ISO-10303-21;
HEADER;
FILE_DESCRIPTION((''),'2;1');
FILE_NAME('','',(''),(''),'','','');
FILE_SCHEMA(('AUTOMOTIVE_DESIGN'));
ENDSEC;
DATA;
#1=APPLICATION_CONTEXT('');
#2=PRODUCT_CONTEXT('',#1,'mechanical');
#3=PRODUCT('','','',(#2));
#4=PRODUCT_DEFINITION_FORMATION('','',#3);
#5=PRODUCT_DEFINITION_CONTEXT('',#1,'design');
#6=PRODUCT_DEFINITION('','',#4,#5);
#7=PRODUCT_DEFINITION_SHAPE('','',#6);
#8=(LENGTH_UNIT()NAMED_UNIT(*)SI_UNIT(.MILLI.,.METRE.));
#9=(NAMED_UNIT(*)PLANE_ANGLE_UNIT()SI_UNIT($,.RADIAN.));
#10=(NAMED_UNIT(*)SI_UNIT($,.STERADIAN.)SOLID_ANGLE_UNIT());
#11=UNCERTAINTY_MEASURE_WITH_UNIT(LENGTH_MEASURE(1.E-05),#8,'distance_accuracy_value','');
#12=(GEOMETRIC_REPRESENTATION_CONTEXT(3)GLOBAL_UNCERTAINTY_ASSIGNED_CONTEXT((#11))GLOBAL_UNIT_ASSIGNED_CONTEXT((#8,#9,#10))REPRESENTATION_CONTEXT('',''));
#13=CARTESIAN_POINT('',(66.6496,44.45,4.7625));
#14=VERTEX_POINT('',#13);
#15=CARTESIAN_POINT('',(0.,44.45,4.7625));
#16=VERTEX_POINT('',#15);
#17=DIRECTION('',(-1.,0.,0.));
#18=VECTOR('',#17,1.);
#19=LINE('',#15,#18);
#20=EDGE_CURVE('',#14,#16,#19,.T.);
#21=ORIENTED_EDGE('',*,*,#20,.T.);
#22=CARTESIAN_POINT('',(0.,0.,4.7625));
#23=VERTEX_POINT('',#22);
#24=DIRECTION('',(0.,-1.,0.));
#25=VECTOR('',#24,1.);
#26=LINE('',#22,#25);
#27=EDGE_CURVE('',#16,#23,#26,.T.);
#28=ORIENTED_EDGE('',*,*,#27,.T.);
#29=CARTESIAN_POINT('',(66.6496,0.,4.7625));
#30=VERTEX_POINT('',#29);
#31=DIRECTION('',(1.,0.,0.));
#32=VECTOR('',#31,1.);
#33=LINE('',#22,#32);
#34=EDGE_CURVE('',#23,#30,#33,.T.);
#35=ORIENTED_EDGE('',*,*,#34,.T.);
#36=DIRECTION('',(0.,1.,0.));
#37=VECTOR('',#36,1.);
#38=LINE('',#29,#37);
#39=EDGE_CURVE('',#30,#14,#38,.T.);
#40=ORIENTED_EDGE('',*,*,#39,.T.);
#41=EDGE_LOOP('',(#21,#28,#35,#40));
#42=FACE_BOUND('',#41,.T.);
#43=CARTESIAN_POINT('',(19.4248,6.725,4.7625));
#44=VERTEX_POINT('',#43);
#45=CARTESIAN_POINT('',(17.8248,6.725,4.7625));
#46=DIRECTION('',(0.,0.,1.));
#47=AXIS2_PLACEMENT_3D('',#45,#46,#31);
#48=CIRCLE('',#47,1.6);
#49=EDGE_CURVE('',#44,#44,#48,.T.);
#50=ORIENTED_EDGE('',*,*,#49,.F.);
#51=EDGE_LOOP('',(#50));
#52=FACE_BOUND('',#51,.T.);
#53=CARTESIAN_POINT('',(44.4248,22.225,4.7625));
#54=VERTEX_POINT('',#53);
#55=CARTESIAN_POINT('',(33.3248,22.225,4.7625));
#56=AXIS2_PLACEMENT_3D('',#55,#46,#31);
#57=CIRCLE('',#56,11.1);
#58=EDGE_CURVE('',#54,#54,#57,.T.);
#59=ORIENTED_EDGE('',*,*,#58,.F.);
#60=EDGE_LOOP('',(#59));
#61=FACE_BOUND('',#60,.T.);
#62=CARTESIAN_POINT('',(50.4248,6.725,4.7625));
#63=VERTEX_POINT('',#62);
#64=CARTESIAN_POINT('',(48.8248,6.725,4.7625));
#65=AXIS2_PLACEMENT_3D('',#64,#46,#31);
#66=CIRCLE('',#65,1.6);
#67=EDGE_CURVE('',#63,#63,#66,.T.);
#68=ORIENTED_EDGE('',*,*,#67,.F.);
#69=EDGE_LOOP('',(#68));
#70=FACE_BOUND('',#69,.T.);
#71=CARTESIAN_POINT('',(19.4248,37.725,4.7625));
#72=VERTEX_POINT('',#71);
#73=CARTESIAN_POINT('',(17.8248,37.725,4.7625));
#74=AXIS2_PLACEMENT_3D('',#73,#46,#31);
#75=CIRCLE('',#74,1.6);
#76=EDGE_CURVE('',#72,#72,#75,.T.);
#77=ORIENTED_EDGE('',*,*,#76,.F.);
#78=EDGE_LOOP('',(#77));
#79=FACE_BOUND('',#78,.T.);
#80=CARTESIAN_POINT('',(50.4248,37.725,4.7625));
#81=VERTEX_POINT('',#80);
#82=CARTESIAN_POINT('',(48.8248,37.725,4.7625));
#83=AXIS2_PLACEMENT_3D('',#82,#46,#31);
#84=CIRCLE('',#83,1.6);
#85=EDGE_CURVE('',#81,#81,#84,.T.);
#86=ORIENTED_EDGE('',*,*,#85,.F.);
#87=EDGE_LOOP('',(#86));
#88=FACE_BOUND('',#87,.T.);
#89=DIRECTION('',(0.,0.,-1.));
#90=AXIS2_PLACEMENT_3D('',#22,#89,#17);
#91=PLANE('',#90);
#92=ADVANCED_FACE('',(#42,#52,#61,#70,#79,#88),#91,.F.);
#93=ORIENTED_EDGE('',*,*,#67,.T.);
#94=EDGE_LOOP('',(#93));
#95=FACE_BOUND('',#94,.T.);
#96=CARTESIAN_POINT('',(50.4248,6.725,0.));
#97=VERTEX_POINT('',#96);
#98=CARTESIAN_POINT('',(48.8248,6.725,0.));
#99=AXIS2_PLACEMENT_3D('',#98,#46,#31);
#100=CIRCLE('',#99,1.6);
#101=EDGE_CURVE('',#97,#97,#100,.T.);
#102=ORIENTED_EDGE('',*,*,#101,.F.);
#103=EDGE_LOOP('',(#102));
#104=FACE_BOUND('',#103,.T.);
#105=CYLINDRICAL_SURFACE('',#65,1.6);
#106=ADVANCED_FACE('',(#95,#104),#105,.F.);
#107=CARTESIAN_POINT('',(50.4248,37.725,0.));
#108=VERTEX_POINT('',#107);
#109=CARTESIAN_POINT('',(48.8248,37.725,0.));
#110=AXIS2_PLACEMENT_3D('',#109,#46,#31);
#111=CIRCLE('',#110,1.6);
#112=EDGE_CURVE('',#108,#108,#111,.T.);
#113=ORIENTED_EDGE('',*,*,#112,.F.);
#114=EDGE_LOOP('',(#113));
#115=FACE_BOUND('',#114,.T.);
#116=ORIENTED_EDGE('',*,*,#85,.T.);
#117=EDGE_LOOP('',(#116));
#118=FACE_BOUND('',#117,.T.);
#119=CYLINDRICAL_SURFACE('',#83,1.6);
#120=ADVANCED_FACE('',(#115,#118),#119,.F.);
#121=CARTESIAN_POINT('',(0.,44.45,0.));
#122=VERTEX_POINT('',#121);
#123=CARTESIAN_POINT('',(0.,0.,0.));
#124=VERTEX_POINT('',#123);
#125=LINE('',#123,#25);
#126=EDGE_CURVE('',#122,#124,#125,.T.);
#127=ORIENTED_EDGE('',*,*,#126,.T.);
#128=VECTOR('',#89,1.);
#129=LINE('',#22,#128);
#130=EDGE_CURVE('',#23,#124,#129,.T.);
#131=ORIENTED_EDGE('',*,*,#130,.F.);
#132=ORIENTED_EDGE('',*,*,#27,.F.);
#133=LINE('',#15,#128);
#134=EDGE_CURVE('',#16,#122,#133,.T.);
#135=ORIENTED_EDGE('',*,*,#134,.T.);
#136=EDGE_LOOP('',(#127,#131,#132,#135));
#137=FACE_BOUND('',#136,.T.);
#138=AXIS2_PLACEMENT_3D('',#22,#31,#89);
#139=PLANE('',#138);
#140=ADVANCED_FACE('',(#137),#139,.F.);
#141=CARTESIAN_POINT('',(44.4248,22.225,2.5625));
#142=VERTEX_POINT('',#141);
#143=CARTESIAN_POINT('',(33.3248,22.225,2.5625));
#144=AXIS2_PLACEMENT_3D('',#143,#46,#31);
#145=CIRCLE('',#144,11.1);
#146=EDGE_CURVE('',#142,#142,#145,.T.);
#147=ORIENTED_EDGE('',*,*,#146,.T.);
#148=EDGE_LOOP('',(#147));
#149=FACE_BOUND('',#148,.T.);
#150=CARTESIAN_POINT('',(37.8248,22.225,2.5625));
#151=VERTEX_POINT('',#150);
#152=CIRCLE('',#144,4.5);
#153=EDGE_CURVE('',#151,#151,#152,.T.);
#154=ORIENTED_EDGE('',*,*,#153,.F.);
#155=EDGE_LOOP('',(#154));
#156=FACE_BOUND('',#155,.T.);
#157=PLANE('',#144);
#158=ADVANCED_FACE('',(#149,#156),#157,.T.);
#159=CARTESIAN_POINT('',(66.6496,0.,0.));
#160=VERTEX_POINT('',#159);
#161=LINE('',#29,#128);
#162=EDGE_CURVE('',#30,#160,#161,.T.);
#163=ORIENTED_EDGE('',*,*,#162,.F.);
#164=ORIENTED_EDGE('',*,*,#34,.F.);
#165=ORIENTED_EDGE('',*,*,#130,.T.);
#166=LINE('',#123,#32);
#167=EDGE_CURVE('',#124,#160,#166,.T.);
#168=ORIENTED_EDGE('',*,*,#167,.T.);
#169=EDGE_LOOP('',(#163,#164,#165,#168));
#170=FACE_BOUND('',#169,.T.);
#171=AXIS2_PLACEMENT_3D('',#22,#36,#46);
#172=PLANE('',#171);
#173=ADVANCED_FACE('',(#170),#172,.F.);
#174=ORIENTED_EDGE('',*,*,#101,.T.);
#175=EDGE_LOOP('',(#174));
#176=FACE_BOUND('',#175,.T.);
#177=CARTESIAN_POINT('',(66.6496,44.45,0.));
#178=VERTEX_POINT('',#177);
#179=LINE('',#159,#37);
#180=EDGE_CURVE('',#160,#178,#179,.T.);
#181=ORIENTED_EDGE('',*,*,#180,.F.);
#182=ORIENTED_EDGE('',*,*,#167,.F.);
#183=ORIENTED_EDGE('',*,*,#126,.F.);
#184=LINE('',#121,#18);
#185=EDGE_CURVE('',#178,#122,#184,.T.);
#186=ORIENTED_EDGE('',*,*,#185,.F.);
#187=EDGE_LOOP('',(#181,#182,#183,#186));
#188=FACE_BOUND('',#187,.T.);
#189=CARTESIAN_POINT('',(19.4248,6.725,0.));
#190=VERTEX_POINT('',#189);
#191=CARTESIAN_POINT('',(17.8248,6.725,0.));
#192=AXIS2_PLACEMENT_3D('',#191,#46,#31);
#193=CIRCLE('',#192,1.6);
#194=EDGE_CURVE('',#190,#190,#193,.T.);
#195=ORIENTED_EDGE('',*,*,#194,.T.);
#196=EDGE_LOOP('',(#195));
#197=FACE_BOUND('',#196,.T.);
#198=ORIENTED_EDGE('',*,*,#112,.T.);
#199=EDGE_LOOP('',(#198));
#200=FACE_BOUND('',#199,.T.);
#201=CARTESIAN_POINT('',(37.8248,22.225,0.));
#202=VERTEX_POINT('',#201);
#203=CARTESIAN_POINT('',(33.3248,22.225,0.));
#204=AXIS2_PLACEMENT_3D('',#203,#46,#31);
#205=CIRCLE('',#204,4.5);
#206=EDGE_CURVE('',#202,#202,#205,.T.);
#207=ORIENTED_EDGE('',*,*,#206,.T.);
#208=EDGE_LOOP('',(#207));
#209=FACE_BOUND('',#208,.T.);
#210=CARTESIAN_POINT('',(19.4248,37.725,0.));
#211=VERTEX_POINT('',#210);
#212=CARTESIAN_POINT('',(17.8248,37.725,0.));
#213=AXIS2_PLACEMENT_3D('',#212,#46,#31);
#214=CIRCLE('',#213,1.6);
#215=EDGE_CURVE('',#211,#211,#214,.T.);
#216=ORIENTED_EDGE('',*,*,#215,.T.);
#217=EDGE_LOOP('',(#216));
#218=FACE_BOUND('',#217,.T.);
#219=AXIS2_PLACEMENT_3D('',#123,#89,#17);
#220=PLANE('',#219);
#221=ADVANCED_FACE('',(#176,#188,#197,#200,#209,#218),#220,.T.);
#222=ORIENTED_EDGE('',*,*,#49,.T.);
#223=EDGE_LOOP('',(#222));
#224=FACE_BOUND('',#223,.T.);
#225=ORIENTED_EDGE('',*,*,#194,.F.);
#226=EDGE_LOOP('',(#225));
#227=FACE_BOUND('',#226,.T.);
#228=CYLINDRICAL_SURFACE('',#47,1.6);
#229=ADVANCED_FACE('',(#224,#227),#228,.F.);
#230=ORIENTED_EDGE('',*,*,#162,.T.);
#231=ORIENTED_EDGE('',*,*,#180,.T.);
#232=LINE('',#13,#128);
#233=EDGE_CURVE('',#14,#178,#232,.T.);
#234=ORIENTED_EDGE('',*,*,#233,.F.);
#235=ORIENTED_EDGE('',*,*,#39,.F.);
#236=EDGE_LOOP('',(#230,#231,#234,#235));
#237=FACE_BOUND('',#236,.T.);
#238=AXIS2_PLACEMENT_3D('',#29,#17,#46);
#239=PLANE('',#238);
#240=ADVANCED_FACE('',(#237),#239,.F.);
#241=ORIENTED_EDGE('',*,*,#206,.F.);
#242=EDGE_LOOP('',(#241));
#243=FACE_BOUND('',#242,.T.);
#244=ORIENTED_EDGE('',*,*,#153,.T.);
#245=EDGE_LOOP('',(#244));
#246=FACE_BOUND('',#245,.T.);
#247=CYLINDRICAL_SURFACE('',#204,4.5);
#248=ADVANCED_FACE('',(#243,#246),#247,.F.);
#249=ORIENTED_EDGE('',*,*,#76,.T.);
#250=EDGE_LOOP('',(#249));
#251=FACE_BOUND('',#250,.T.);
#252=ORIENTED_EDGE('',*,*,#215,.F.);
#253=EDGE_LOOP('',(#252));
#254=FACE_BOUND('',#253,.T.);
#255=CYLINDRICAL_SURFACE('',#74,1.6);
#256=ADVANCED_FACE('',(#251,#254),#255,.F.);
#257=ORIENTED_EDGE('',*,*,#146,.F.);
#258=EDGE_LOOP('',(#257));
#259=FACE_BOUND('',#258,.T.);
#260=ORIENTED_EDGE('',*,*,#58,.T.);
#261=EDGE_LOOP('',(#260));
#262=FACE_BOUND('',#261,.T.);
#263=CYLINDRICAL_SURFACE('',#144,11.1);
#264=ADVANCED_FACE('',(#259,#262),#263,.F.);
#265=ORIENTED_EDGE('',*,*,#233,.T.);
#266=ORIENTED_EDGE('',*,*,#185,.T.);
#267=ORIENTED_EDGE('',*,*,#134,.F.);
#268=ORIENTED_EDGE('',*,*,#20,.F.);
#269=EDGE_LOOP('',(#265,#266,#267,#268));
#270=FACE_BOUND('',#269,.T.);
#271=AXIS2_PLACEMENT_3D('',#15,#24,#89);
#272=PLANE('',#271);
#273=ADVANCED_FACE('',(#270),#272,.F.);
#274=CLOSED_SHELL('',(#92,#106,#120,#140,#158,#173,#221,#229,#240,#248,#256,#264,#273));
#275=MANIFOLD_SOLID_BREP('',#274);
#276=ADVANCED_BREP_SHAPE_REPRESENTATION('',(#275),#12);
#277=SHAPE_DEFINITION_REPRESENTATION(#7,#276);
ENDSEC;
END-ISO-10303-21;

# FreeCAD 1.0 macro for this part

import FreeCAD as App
import Part
import Sketcher

V = App.Vector

doc = App.newDocument("Part")
params = doc.addObject("Spreadsheet::Sheet", "Params")
for row, (alias, value) in enumerate([
    ("sketch1_height", "44.45 mm"),
    ("pad1_length", "4.7625 mm"),
    ("sketch2_diameter", "3.2 mm"),
    ("hole_diameter", "3.2 mm"),
    ("sketch3_diameter", "22.2 mm"),
    ("pocket1_length", "2.2 mm"),
    ("sketch4_diameter", "9 mm"),
], start=1):
    params.set(f"A{row}", alias)
    params.set(f"B{row}", "=" + value)
    params.setAlias(f"B{row}", alias)

body = doc.addObject("PartDesign::Body", "Body")

# Sketch on XY plane
sketch1 = doc.addObject("Sketcher::SketchObject", "Sketch")
body.addObject(sketch1)
sketch1.AttachmentSupport = (doc.XY_Plane, [""])
sketch1.MapMode = "FlatFace"
sketch1.addGeometry(Part.LineSegment(V(0, 44.45, 0), V(0, 0, 0)), False)
sketch1.addGeometry(Part.LineSegment(V(0, 0, 0), V(66.6496, 0, 0)), False)
sketch1.addGeometry(Part.LineSegment(V(66.6496, 0, 0), V(66.6496, 44.45, 0)), False)
sketch1.addGeometry(Part.LineSegment(V(66.6496, 44.45, 0), V(0, 44.45, 0)), False)
sketch1.addConstraint(Sketcher.Constraint("Coincident", 0, 2, 1, 1))
sketch1.addConstraint(Sketcher.Constraint("Coincident", 1, 2, 2, 1))
sketch1.addConstraint(Sketcher.Constraint("Coincident", 2, 2, 3, 1))
sketch1.addConstraint(Sketcher.Constraint("Coincident", 3, 2, 0, 1))
sketch1.addConstraint(Sketcher.Constraint("Vertical", 0))
sketch1.addConstraint(Sketcher.Constraint("Horizontal", 1))
sketch1.addConstraint(Sketcher.Constraint("Vertical", 2))
sketch1.addConstraint(Sketcher.Constraint("Horizontal", 3))
sketch1.addConstraint(Sketcher.Constraint("Coincident", 0, 2, -1, 1))
sketch1.addConstraint(Sketcher.Constraint("DistanceY", 0, 2, 0, 1, 44.45))
sketch1.addConstraint(Sketcher.Constraint("DistanceX", 1, 1, 1, 2, 66.6496))
sketch1.setExpression("Constraints[9]", "Params.sketch1_height")
pad1 = doc.addObject("PartDesign::Pad", "Pad")
body.addObject(pad1)
pad1.Profile = sketch1
pad1.setExpression("Length", "Params.pad1_length")

# Sketch on XY plane
sketch2 = doc.addObject("Sketcher::SketchObject", "Sketch001")
body.addObject(sketch2)
sketch2.AttachmentSupport = (doc.XY_Plane, [""])
sketch2.MapMode = "FlatFace"
sketch2.AttachmentOffset = App.Placement(V(0, 0, 4.7625), App.Rotation())
sketch2.addGeometry(Part.Circle(V(48.8248, 6.725, 0), V(0, 0, 1), 1.6), False)
sketch2.addGeometry(Part.Circle(V(48.8248, 37.725, 0), V(0, 0, 1), 1.6), False)
sketch2.addGeometry(Part.Circle(V(17.8248, 6.725, 0), V(0, 0, 1), 1.6), False)
sketch2.addGeometry(Part.Circle(V(17.8248, 37.725, 0), V(0, 0, 1), 1.6), False)
sketch2.addConstraint(Sketcher.Constraint("Equal", 0, 1))
sketch2.addConstraint(Sketcher.Constraint("Equal", 1, 2))
sketch2.addConstraint(Sketcher.Constraint("Equal", 2, 3))
sketch2.addConstraint(Sketcher.Constraint("Horizontal", 0, 3, 2, 3))
sketch2.addConstraint(Sketcher.Constraint("Horizontal", 1, 3, 3, 3))
sketch2.addConstraint(Sketcher.Constraint("Vertical", 0, 3, 1, 3))
sketch2.addConstraint(Sketcher.Constraint("Vertical", 2, 3, 3, 3))
sketch2.addConstraint(Sketcher.Constraint("Diameter", 0, 3.2))
sketch2.addConstraint(Sketcher.Constraint("DistanceY", 0, 3, 1, 3, 31.0))
sketch2.addConstraint(Sketcher.Constraint("DistanceX", 2, 3, 0, 3, 31.0))
sketch2.addConstraint(Sketcher.Constraint("DistanceY", -1, 1, 0, 3, 6.725))
sketch2.addConstraint(Sketcher.Constraint("DistanceX", -1, 1, 0, 3, 48.8248))
sketch2.setExpression("Constraints[7]", "Params.sketch2_diameter")
doc.recompute()
hole = doc.addObject("PartDesign::Hole", "Hole")
body.addObject(hole)
hole.Profile = sketch2
hole.ThreadType = "None"
hole.setExpression("Diameter", "Params.hole_diameter")
hole.DepthType = "ThroughAll"

# Sketch on XY plane
sketch3 = doc.addObject("Sketcher::SketchObject", "Sketch002")
body.addObject(sketch3)
sketch3.AttachmentSupport = (doc.XY_Plane, [""])
sketch3.MapMode = "FlatFace"
sketch3.AttachmentOffset = App.Placement(V(0, 0, 4.7625), App.Rotation())
sketch3.addGeometry(Part.Circle(V(33.3248, 22.225, 0), V(0, 0, 1), 11.1), False)
sketch3.addConstraint(Sketcher.Constraint("Diameter", 0, 22.2))
sketch3.addConstraint(Sketcher.Constraint("DistanceY", -1, 1, 0, 3, 22.225))
sketch3.addConstraint(Sketcher.Constraint("DistanceX", -1, 1, 0, 3, 33.3248))
sketch3.setExpression("Constraints[0]", "Params.sketch3_diameter")
pocket1 = doc.addObject("PartDesign::Pocket", "Pocket")
body.addObject(pocket1)
pocket1.Profile = sketch3
pocket1.setExpression("Length", "Params.pocket1_length")

# Sketch on XY plane
sketch4 = doc.addObject("Sketcher::SketchObject", "Sketch003")
body.addObject(sketch4)
sketch4.AttachmentSupport = (doc.XY_Plane, [""])
sketch4.MapMode = "FlatFace"
sketch4.AttachmentOffset = App.Placement(V(0, 0, 2.5625), App.Rotation())
sketch4.addGeometry(Part.Circle(V(33.3248, 22.225, 0), V(0, 0, 1), 4.5), False)
sketch4.addConstraint(Sketcher.Constraint("Diameter", 0, 9.0))
sketch4.addConstraint(Sketcher.Constraint("DistanceY", -1, 1, 0, 3, 22.225))
sketch4.addConstraint(Sketcher.Constraint("DistanceX", -1, 1, 0, 3, 33.3248))
sketch4.setExpression("Constraints[0]", "Params.sketch4_diameter")
pocket2 = doc.addObject("PartDesign::Pocket", "Pocket001")
body.addObject(pocket2)
pocket2.Profile = sketch4
pocket2.Type = "ThroughAll"

doc.recompute()
